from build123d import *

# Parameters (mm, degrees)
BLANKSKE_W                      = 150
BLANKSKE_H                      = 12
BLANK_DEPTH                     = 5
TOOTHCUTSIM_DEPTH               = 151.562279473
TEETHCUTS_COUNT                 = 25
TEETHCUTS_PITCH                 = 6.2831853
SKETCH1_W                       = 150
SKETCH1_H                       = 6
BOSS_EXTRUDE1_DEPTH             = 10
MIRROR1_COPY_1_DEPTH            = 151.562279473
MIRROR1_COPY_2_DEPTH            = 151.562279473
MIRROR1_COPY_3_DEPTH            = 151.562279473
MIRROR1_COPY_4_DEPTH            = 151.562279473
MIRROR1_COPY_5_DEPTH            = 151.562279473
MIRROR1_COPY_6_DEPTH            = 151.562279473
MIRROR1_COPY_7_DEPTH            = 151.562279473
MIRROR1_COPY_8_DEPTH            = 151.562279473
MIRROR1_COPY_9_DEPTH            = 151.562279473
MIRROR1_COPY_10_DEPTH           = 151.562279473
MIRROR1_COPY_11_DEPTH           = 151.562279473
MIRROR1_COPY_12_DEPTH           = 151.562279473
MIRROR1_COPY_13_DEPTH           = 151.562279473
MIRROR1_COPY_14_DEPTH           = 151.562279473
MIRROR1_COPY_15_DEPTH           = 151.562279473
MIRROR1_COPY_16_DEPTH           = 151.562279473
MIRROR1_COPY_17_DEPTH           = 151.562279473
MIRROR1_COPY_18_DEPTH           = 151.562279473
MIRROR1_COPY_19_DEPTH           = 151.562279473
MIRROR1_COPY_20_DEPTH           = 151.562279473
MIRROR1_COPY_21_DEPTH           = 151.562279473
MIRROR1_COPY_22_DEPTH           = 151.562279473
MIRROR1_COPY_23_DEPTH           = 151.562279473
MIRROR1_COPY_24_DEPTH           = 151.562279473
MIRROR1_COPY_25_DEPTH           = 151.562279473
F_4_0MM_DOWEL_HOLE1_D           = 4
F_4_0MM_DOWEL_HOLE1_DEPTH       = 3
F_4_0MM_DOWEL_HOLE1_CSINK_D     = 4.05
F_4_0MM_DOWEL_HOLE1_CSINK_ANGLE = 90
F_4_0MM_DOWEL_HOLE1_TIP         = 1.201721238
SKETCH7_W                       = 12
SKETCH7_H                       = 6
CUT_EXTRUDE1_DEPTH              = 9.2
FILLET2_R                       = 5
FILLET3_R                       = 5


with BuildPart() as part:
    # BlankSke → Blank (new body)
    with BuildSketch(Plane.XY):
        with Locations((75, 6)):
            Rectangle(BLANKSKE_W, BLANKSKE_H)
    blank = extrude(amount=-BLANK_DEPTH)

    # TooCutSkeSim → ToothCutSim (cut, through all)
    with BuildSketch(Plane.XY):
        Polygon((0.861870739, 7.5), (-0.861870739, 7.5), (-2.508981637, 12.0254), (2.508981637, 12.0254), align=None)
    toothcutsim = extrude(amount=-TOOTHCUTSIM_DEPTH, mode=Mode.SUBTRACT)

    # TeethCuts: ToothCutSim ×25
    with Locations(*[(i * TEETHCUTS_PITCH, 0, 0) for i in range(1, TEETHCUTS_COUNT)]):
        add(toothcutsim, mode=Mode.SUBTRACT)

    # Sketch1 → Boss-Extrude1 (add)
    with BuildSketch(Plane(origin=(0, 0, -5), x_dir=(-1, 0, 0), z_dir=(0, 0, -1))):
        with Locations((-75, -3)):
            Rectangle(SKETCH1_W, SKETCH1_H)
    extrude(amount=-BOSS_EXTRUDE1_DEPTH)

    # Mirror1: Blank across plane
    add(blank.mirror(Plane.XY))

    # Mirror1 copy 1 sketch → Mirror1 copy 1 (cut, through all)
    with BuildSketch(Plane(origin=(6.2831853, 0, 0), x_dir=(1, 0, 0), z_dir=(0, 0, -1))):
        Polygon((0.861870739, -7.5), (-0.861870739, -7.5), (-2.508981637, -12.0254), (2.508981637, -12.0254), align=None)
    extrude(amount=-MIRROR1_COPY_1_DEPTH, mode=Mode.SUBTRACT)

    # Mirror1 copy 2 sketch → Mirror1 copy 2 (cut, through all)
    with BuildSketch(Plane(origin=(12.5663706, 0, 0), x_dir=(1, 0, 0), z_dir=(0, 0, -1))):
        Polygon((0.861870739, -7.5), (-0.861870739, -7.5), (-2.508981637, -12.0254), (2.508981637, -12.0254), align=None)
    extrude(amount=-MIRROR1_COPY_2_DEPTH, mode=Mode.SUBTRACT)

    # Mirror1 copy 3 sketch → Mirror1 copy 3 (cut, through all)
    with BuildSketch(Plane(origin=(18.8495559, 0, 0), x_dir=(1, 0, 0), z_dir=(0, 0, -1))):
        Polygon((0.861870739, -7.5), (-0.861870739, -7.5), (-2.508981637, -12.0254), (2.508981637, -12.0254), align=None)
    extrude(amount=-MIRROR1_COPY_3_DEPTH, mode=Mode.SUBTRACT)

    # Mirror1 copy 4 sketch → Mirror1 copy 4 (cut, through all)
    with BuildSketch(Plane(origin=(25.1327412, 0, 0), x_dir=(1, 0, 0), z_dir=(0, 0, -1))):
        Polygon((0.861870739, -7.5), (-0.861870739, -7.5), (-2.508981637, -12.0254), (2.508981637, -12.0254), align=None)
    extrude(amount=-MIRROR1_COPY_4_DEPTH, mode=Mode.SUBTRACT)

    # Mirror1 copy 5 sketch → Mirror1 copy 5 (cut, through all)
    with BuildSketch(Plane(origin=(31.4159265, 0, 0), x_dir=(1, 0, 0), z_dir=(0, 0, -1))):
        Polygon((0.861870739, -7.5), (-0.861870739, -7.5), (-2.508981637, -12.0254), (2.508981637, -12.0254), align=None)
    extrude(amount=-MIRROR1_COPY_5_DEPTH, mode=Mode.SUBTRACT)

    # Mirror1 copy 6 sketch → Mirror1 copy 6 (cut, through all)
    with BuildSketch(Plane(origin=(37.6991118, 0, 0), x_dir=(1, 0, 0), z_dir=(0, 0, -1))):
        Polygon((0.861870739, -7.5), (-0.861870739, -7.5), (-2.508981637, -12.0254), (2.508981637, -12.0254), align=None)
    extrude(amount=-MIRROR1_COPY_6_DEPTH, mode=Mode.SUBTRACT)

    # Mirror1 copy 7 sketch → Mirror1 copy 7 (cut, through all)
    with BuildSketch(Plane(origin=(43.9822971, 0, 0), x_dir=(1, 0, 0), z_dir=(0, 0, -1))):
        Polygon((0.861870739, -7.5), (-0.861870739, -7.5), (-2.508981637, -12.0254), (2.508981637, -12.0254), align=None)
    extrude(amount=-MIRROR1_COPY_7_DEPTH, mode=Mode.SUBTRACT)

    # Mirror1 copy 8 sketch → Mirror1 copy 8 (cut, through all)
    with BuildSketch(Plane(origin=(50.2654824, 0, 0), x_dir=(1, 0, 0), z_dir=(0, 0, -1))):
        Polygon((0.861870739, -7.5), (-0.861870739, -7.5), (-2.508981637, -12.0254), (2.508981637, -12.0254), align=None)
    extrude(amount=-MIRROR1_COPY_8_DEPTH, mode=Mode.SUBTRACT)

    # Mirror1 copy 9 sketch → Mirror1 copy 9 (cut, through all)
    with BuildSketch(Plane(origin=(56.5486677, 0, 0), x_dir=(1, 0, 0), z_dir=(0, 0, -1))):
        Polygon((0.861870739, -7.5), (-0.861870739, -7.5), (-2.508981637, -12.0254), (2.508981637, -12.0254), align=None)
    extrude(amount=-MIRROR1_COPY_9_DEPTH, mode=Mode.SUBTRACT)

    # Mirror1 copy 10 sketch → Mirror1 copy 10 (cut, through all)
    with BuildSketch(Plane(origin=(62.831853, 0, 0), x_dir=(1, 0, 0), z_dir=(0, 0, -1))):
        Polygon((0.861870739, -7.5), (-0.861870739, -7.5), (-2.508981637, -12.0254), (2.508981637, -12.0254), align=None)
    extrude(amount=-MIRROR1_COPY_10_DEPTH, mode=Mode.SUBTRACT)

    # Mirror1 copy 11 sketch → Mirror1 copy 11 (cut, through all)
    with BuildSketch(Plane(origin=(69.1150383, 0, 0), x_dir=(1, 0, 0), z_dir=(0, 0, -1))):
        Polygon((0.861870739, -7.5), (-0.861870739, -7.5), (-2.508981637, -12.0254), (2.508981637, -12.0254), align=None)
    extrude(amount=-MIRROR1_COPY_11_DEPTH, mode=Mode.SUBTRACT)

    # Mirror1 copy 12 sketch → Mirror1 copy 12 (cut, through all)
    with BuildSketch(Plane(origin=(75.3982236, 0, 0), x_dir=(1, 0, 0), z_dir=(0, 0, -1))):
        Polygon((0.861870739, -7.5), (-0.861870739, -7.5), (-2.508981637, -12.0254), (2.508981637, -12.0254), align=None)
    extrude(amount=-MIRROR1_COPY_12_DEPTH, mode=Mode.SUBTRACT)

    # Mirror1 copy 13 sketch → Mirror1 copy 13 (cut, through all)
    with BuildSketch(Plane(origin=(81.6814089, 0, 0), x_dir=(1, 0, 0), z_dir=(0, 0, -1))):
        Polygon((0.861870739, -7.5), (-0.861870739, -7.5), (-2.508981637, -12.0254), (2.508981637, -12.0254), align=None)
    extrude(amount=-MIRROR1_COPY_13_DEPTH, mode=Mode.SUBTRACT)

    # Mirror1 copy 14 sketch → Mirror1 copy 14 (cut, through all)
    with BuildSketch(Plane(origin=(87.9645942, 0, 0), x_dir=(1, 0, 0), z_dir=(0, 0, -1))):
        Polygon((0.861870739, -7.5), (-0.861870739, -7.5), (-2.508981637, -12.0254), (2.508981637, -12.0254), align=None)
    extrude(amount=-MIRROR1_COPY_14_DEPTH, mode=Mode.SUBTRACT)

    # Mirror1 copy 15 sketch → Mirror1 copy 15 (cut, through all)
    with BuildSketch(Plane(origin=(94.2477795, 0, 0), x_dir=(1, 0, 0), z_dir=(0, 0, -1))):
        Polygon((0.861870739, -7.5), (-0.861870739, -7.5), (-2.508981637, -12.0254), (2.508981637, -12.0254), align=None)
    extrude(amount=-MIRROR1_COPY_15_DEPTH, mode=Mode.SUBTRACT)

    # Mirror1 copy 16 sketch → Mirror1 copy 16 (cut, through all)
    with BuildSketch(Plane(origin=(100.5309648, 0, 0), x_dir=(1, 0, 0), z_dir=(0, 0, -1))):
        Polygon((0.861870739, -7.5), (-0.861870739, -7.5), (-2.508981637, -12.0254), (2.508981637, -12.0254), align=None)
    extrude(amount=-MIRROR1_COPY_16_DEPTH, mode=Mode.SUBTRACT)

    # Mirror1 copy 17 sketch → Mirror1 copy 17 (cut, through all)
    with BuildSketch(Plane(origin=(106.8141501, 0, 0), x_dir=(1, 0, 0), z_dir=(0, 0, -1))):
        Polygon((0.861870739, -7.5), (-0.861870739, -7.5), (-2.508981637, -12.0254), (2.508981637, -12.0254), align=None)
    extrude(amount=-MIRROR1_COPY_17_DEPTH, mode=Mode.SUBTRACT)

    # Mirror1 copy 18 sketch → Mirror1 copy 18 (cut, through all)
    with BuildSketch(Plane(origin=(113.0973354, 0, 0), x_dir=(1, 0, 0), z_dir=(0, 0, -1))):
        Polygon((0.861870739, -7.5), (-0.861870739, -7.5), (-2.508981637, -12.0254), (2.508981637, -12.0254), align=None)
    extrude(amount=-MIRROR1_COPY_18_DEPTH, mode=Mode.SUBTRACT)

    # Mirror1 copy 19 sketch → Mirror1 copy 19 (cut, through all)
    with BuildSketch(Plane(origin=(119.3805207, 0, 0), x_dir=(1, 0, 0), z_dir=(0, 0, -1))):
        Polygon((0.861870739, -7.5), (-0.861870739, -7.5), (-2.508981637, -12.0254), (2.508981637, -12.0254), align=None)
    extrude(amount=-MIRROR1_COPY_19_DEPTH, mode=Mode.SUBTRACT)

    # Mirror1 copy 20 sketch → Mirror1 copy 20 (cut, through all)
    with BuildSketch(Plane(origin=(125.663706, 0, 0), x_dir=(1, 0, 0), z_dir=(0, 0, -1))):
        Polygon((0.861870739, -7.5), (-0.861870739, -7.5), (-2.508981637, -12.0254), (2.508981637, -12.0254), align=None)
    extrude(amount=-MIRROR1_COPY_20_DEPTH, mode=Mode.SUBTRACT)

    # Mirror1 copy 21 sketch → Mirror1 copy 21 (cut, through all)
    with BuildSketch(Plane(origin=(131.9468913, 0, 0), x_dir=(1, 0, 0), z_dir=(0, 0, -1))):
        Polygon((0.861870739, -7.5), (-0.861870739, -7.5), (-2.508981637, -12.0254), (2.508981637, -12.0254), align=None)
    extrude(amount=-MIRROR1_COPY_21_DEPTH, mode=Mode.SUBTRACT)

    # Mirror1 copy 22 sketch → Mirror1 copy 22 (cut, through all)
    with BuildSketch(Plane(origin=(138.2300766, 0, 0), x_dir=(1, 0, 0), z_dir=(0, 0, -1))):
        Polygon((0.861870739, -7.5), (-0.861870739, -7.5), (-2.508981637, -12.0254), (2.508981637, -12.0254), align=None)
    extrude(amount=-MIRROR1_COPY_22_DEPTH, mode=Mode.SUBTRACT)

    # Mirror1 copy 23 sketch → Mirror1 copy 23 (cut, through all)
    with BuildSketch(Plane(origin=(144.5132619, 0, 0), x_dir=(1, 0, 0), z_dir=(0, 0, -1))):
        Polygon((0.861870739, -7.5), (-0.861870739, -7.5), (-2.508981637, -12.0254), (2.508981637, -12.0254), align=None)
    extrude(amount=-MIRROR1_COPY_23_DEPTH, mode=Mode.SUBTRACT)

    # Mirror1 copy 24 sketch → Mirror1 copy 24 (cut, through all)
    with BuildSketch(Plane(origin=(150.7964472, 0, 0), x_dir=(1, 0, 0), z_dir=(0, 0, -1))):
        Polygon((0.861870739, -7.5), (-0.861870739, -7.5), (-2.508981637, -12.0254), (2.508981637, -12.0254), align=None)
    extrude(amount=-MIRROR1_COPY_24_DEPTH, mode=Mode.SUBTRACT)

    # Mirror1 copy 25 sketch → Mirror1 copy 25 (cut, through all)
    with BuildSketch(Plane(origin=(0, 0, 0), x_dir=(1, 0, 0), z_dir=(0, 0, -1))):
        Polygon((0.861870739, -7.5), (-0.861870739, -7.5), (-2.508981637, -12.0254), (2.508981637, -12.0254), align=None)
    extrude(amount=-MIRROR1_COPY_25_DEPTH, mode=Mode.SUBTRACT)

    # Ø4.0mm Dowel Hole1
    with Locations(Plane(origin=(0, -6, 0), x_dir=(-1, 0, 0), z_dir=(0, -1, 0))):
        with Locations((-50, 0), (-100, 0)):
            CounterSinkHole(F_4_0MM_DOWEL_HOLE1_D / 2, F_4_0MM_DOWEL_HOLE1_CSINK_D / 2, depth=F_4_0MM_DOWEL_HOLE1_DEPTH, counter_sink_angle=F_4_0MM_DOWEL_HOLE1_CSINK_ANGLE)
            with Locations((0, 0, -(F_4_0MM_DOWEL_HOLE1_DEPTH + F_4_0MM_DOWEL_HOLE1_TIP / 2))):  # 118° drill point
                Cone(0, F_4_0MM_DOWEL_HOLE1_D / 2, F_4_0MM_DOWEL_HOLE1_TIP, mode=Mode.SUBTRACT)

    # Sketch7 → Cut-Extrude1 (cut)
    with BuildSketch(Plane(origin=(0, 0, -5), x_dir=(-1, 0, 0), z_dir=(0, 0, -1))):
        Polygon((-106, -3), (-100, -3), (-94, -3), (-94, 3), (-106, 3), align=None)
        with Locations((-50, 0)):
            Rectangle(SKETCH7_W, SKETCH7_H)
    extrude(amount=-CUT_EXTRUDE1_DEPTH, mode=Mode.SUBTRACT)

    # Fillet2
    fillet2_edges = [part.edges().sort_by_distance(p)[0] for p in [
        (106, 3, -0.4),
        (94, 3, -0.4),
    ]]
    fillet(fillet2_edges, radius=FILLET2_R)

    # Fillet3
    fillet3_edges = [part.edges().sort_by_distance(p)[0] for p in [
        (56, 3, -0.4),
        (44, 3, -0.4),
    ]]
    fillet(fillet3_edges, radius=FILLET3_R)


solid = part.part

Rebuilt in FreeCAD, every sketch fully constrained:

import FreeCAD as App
import Part
import Sketcher
from FreeCAD import Vector
Q = App.Units.Quantity


def edges_at(feature, points):
    """Names of the edges that pass closest to the given points."""
    edges = feature.Shape.Edges
    near = lambda p: min(range(len(edges)), key=lambda i: edges[i].distToShape(Part.Vertex(*p))[0])
    return sorted({f"Edge{near(p) + 1}" for p in points})


def add_polygon(sketch, points):
    """Adds a closed chain of lines whose ends are joined by coincident constraints."""
    first, n = sketch.GeometryCount, len(points)
    for a, b in zip(points, points[1:] + points[:1]):
        sketch.addGeometry(Part.LineSegment(App.Vector(*a, 0), App.Vector(*b, 0)), False)
    for i in range(n):
        sketch.addConstraint(Sketcher.Constraint("Coincident", first + i, 2, first + (i + 1) % n, 1))

doc = App.newDocument("Part")
body = doc.addObject("PartDesign::Body", "Body")

# Sketch on XY plane
sketch1 = body.newObject("Sketcher::SketchObject", "Sketch")
sketch1.AttachmentSupport = (doc.getObject("XY_Plane"), [""])
sketch1.MapMode = "FlatFace"
add_polygon(sketch1, [(0, 12), (0, 0), (150, 0), (150, 12)])  # lines 0-3
sketch1.addConstraint([
    Sketcher.Constraint("Vertical", 0),
    Sketcher.Constraint("Horizontal", 1),
    Sketcher.Constraint("Vertical", 2),
    Sketcher.Constraint("Horizontal", 3),
    Sketcher.Constraint("Coincident", 0, 2, -1, 1),
    Sketcher.Constraint("DistanceX", 1, 1, 1, 2, 150.0),
    Sketcher.Constraint("DistanceY", 0, 2, 0, 1, 12.0),
])
pad1 = body.newObject("PartDesign::Pad", "Pad")
pad1.Profile = sketch1
pad1.Length = 5
pad1.Reversed = True

# Sketch on XY plane
sketch2 = body.newObject("Sketcher::SketchObject", "Sketch001")
sketch2.AttachmentSupport = (doc.getObject("XY_Plane"), [""])
sketch2.MapMode = "FlatFace"
add_polygon(sketch2, [(-0.9, 7.5), (0.9, 7.5), (2.5, 12), (-2.5, 12)])  # lines 0-3
sketch2.addConstraint([
    Sketcher.Constraint("Horizontal", 0),
    Sketcher.Constraint("Horizontal", 2),
    Sketcher.Constraint("Equal", 1, 3),
    Sketcher.Constraint("Angle", 1, Q("70 deg")),
    Sketcher.Constraint("DistanceY", -1, 1, 0, 2, 7.5),
    Sketcher.Constraint("DistanceX", 0, 1, 0, 2, 1.723741),
    Sketcher.Constraint("DistanceY", -1, 1, 1, 2, 12.0254),
    Sketcher.Constraint("DistanceX", -1, 1, 0, 2, 0.861871),
])
pocket1 = body.newObject("PartDesign::Pocket", "Pocket")
pocket1.Profile = sketch2
pocket1.Type = "ThroughAll"
doc.recompute()

linearpattern = body.newObject("PartDesign::LinearPattern", "LinearPattern")
linearpattern.Originals = [pocket1]
linearpattern.Direction = (doc.getObject("X_Axis"), [""])
linearpattern.Mode = "offset"
linearpattern.Offset = 6.283185
linearpattern.Occurrences = 25
body.Tip = linearpattern

# Sketch on XY plane
sketch3 = body.newObject("Sketcher::SketchObject", "Sketch002")
sketch3.AttachmentSupport = (doc.getObject("XY_Plane"), [""])
sketch3.MapMode = "FlatFace"
sketch3.AttachmentOffset = App.Placement(Vector(0, 0, -5), App.Rotation())
add_polygon(sketch3, [(150, 0), (150, -6), (0, -6), (0, 0)])  # lines 0-3
sketch3.addConstraint([
    Sketcher.Constraint("Vertical", 0),
    Sketcher.Constraint("Horizontal", 1),
    Sketcher.Constraint("Vertical", 2),
    Sketcher.Constraint("Horizontal", 3),
    Sketcher.Constraint("Coincident", 2, 2, -1, 1),
    Sketcher.Constraint("DistanceX", 1, 2, 1, 1, 150.0),
    Sketcher.Constraint("DistanceY", 0, 2, 0, 1, 6.0),
])
pad2 = body.newObject("PartDesign::Pad", "Pad001")
pad2.Profile = sketch3
pad2.Length = 10
doc.recompute()

mirrored = body.newObject("PartDesign::Mirrored", "Mirrored")
mirrored.Originals = [pad1]
mirrored.MirrorPlane = (doc.getObject("XY_Plane"), [""])
body.Tip = mirrored

# Sketch on XY plane
sketch4 = body.newObject("Sketcher::SketchObject", "Sketch003")
sketch4.AttachmentSupport = (doc.getObject("XY_Plane"), [""])
sketch4.MapMode = "FlatFace"
add_polygon(sketch4, [(7.1, 7.5), (5.4, 7.5), (3.8, 12), (8.8, 12)])  # lines 0-3
sketch4.addConstraint([
    Sketcher.Constraint("Horizontal", 0),
    Sketcher.Constraint("Horizontal", 2),
    Sketcher.Constraint("Equal", 1, 3),
    Sketcher.Constraint("Angle", 1, Q("110 deg")),
    Sketcher.Constraint("DistanceY", -1, 1, 0, 2, 7.5),
    Sketcher.Constraint("DistanceX", 0, 2, 0, 1, 1.723741),
    Sketcher.Constraint("DistanceY", -1, 1, 1, 2, 12.0254),
    Sketcher.Constraint("DistanceX", -1, 1, 0, 2, 5.421315),
])
pocket2 = body.newObject("PartDesign::Pocket", "Pocket001")
pocket2.Profile = sketch4
pocket2.Type = "ThroughAll"
pocket2.Reversed = True

# Sketch on XY plane
sketch5 = body.newObject("Sketcher::SketchObject", "Sketch004")
sketch5.AttachmentSupport = (doc.getObject("XY_Plane"), [""])
sketch5.MapMode = "FlatFace"
add_polygon(sketch5, [(13.4, 7.5), (11.7, 7.5), (10.1, 12), (15.1, 12)])  # lines 0-3
sketch5.addConstraint([
    Sketcher.Constraint("Horizontal", 0),
    Sketcher.Constraint("Horizontal", 2),
    Sketcher.Constraint("Equal", 1, 3),
    Sketcher.Constraint("Angle", 1, Q("110 deg")),
    Sketcher.Constraint("DistanceY", -1, 1, 0, 2, 7.5),
    Sketcher.Constraint("DistanceX", 0, 2, 0, 1, 1.723741),
    Sketcher.Constraint("DistanceX", -1, 1, 0, 2, 11.7045),
    Sketcher.Constraint("DistanceY", -1, 1, 1, 2, 12.0254),
])
pocket3 = body.newObject("PartDesign::Pocket", "Pocket002")
pocket3.Profile = sketch5
pocket3.Type = "ThroughAll"
pocket3.Reversed = True

# Sketch on XY plane
sketch6 = body.newObject("Sketcher::SketchObject", "Sketch005")
sketch6.AttachmentSupport = (doc.getObject("XY_Plane"), [""])
sketch6.MapMode = "FlatFace"
add_polygon(sketch6, [(19.7, 7.5), (18, 7.5), (16.3, 12), (21.4, 12)])  # lines 0-3
sketch6.addConstraint([
    Sketcher.Constraint("Horizontal", 0),
    Sketcher.Constraint("Horizontal", 2),
    Sketcher.Constraint("Equal", 1, 3),
    Sketcher.Constraint("Angle", 1, Q("110 deg")),
    Sketcher.Constraint("DistanceY", -1, 1, 0, 2, 7.5),
    Sketcher.Constraint("DistanceX", 0, 2, 0, 1, 1.723741),
    Sketcher.Constraint("DistanceY", -1, 1, 1, 2, 12.0254),
    Sketcher.Constraint("DistanceX", -1, 1, 0, 2, 17.987685),
])
pocket4 = body.newObject("PartDesign::Pocket", "Pocket003")
pocket4.Profile = sketch6
pocket4.Type = "ThroughAll"
pocket4.Reversed = True

# Sketch on XY plane
sketch7 = body.newObject("Sketcher::SketchObject", "Sketch006")
sketch7.AttachmentSupport = (doc.getObject("XY_Plane"), [""])
sketch7.MapMode = "FlatFace"
add_polygon(sketch7, [(26, 7.5), (24.3, 7.5), (22.6, 12), (27.6, 12)])  # lines 0-3
sketch7.addConstraint([
    Sketcher.Constraint("Horizontal", 0),
    Sketcher.Constraint("Horizontal", 2),
    Sketcher.Constraint("Equal", 1, 3),
    Sketcher.Constraint("Angle", 1, Q("110 deg")),
    Sketcher.Constraint("DistanceY", -1, 1, 0, 2, 7.5),
    Sketcher.Constraint("DistanceX", 0, 2, 0, 1, 1.723741),
    Sketcher.Constraint("DistanceY", -1, 1, 1, 2, 12.0254),
    Sketcher.Constraint("DistanceX", -1, 1, 0, 2, 24.27087),
])
pocket5 = body.newObject("PartDesign::Pocket", "Pocket004")
pocket5.Profile = sketch7
pocket5.Type = "ThroughAll"
pocket5.Reversed = True

# Sketch on XY plane
sketch8 = body.newObject("Sketcher::SketchObject", "Sketch007")
sketch8.AttachmentSupport = (doc.getObject("XY_Plane"), [""])
sketch8.MapMode = "FlatFace"
add_polygon(sketch8, [(32.3, 7.5), (30.6, 7.5), (28.9, 12), (33.9, 12)])  # lines 0-3
sketch8.addConstraint([
    Sketcher.Constraint("Horizontal", 0),
    Sketcher.Constraint("Horizontal", 2),
    Sketcher.Constraint("Equal", 1, 3),
    Sketcher.Constraint("Angle", 1, Q("110 deg")),
    Sketcher.Constraint("DistanceY", -1, 1, 0, 2, 7.5),
    Sketcher.Constraint("DistanceX", 0, 2, 0, 1, 1.723741),
    Sketcher.Constraint("DistanceY", -1, 1, 1, 2, 12.0254),
    Sketcher.Constraint("DistanceX", -1, 1, 2, 2, 33.924908),
])
pocket6 = body.newObject("PartDesign::Pocket", "Pocket005")
pocket6.Profile = sketch8
pocket6.Type = "ThroughAll"
pocket6.Reversed = True

# Sketch on XY plane
sketch9 = body.newObject("Sketcher::SketchObject", "Sketch008")
sketch9.AttachmentSupport = (doc.getObject("XY_Plane"), [""])
sketch9.MapMode = "FlatFace"
add_polygon(sketch9, [(38.6, 7.5), (36.8, 7.5), (35.2, 12), (40.2, 12)])  # lines 0-3
sketch9.addConstraint([
    Sketcher.Constraint("Horizontal", 0),
    Sketcher.Constraint("Horizontal", 2),
    Sketcher.Constraint("Equal", 1, 3),
    Sketcher.Constraint("Angle", 1, Q("110 deg")),
    Sketcher.Constraint("DistanceY", -1, 1, 0, 2, 7.5),
    Sketcher.Constraint("DistanceX", 0, 2, 0, 1, 1.723741),
    Sketcher.Constraint("DistanceY", -1, 1, 1, 2, 12.0254),
    Sketcher.Constraint("DistanceX", -1, 1, 0, 2, 36.837241),
])
pocket7 = body.newObject("PartDesign::Pocket", "Pocket006")
pocket7.Profile = sketch9
pocket7.Type = "ThroughAll"
pocket7.Reversed = True

# Sketch on XY plane
sketch10 = body.newObject("Sketcher::SketchObject", "Sketch009")
sketch10.AttachmentSupport = (doc.getObject("XY_Plane"), [""])
sketch10.MapMode = "FlatFace"
add_polygon(sketch10, [(44.8, 7.5), (43.1, 7.5), (41.5, 12), (46.5, 12)])  # lines 0-3
sketch10.addConstraint([
    Sketcher.Constraint("Horizontal", 0),
    Sketcher.Constraint("Horizontal", 2),
    Sketcher.Constraint("Equal", 1, 3),
    Sketcher.Constraint("Angle", 1, Q("110 deg")),
    Sketcher.Constraint("DistanceY", -1, 1, 0, 2, 7.5),
    Sketcher.Constraint("DistanceX", 0, 2, 0, 1, 1.723741),
    Sketcher.Constraint("DistanceY", -1, 1, 1, 2, 12.0254),
    Sketcher.Constraint("DistanceX", -1, 1, 2, 2, 46.491279),
])
pocket8 = body.newObject("PartDesign::Pocket", "Pocket007")
pocket8.Profile = sketch10
pocket8.Type = "ThroughAll"
pocket8.Reversed = True

# Sketch on XY plane
sketch11 = body.newObject("Sketcher::SketchObject", "Sketch010")
sketch11.AttachmentSupport = (doc.getObject("XY_Plane"), [""])
sketch11.MapMode = "FlatFace"
add_polygon(sketch11, [(51.1, 7.5), (49.4, 7.5), (47.8, 12), (52.8, 12)])  # lines 0-3
sketch11.addConstraint([
    Sketcher.Constraint("Horizontal", 0),
    Sketcher.Constraint("Horizontal", 2),
    Sketcher.Constraint("Equal", 1, 3),
    Sketcher.Constraint("Angle", 1, Q("110 deg")),
    Sketcher.Constraint("DistanceY", -1, 1, 0, 2, 7.5),
    Sketcher.Constraint("DistanceX", 0, 2, 0, 1, 1.723741),
    Sketcher.Constraint("DistanceX", -1, 1, 1, 2, 47.756501),
    Sketcher.Constraint("DistanceY", -1, 1, 1, 2, 12.0254),
])
pocket9 = body.newObject("PartDesign::Pocket", "Pocket008")
pocket9.Profile = sketch11
pocket9.Type = "ThroughAll"
pocket9.Reversed = True

# Sketch on XY plane
sketch12 = body.newObject("Sketcher::SketchObject", "Sketch011")
sketch12.AttachmentSupport = (doc.getObject("XY_Plane"), [""])
sketch12.MapMode = "FlatFace"
add_polygon(sketch12, [(57.4, 7.5), (55.7, 7.5), (54, 12), (59.1, 12)])  # lines 0-3
sketch12.addConstraint([
    Sketcher.Constraint("Horizontal", 0),
    Sketcher.Constraint("Horizontal", 2),
    Sketcher.Constraint("Equal", 1, 3),
    Sketcher.Constraint("Angle", 1, Q("110 deg")),
    Sketcher.Constraint("DistanceY", -1, 1, 0, 2, 7.5),
    Sketcher.Constraint("DistanceX", 0, 2, 0, 1, 1.723741),
    Sketcher.Constraint("DistanceY", -1, 1, 1, 2, 12.0254),
    Sketcher.Constraint("DistanceX", -1, 1, 2, 2, 59.057649),
])
pocket10 = body.newObject("PartDesign::Pocket", "Pocket009")
pocket10.Profile = sketch12
pocket10.Type = "ThroughAll"
pocket10.Reversed = True

# Sketch on XY plane
sketch13 = body.newObject("Sketcher::SketchObject", "Sketch012")
sketch13.AttachmentSupport = (doc.getObject("XY_Plane"), [""])
sketch13.MapMode = "FlatFace"
add_polygon(sketch13, [(63.7, 7.5), (62, 7.5), (60.3, 12), (65.3, 12)])  # lines 0-3
sketch13.addConstraint([
    Sketcher.Constraint("Horizontal", 0),
    Sketcher.Constraint("Horizontal", 2),
    Sketcher.Constraint("Equal", 1, 3),
    Sketcher.Constraint("Angle", 1, Q("110 deg")),
    Sketcher.Constraint("DistanceY", -1, 1, 0, 2, 7.5),
    Sketcher.Constraint("DistanceX", 0, 2, 0, 1, 1.723741),
    Sketcher.Constraint("DistanceY", -1, 1, 1, 2, 12.0254),
    Sketcher.Constraint("DistanceX", -1, 1, 1, 2, 60.322871),
])
pocket11 = body.newObject("PartDesign::Pocket", "Pocket010")
pocket11.Profile = sketch13
pocket11.Type = "ThroughAll"
pocket11.Reversed = True

# Sketch on XY plane
sketch14 = body.newObject("Sketcher::SketchObject", "Sketch013")
sketch14.AttachmentSupport = (doc.getObject("XY_Plane"), [""])
sketch14.MapMode = "FlatFace"
add_polygon(sketch14, [(70, 7.5), (68.3, 7.5), (66.6, 12), (71.6, 12)])  # lines 0-3
sketch14.addConstraint([
    Sketcher.Constraint("Horizontal", 0),
    Sketcher.Constraint("Horizontal", 2),
    Sketcher.Constraint("Equal", 1, 3),
    Sketcher.Constraint("Angle", 1, Q("110 deg")),
    Sketcher.Constraint("DistanceY", -1, 1, 0, 2, 7.5),
    Sketcher.Constraint("DistanceX", 0, 2, 0, 1, 1.723741),
    Sketcher.Constraint("DistanceY", -1, 1, 1, 2, 12.0254),
    Sketcher.Constraint("DistanceX", -1, 1, 2, 2, 71.62402),
])
pocket12 = body.newObject("PartDesign::Pocket", "Pocket011")
pocket12.Profile = sketch14
pocket12.Type = "ThroughAll"
pocket12.Reversed = True

# Sketch on XY plane
sketch15 = body.newObject("Sketcher::SketchObject", "Sketch014")
sketch15.AttachmentSupport = (doc.getObject("XY_Plane"), [""])
sketch15.MapMode = "FlatFace"
add_polygon(sketch15, [(76.3, 7.5), (74.5, 7.5), (72.9, 12), (77.9, 12)])  # lines 0-3
sketch15.addConstraint([
    Sketcher.Constraint("Horizontal", 0),
    Sketcher.Constraint("Horizontal", 2),
    Sketcher.Constraint("Equal", 1, 3),
    Sketcher.Constraint("Angle", 1, Q("110 deg")),
    Sketcher.Constraint("DistanceY", -1, 1, 0, 2, 7.5),
    Sketcher.Constraint("DistanceX", 0, 2, 0, 1, 1.723741),
    Sketcher.Constraint("DistanceY", -1, 1, 1, 2, 12.0254),
    Sketcher.Constraint("DistanceX", -1, 1, 1, 2, 72.889242),
])
pocket13 = body.newObject("PartDesign::Pocket", "Pocket012")
pocket13.Profile = sketch15
pocket13.Type = "ThroughAll"
pocket13.Reversed = True

# Sketch on XY plane
sketch16 = body.newObject("Sketcher::SketchObject", "Sketch015")
sketch16.AttachmentSupport = (doc.getObject("XY_Plane"), [""])
sketch16.MapMode = "FlatFace"
add_polygon(sketch16, [(82.5, 7.5), (80.8, 7.5), (79.2, 12), (84.2, 12)])  # lines 0-3
sketch16.addConstraint([
    Sketcher.Constraint("Horizontal", 0),
    Sketcher.Constraint("Horizontal", 2),
    Sketcher.Constraint("Equal", 1, 3),
    Sketcher.Constraint("Angle", 1, Q("110 deg")),
    Sketcher.Constraint("DistanceY", -1, 1, 0, 2, 7.5),
    Sketcher.Constraint("DistanceX", 0, 2, 0, 1, 1.723741),
    Sketcher.Constraint("DistanceY", -1, 1, 1, 2, 12.0254),
    Sketcher.Constraint("DistanceX", -1, 1, 0, 2, 80.819538),
])
pocket14 = body.newObject("PartDesign::Pocket", "Pocket013")
pocket14.Profile = sketch16
pocket14.Type = "ThroughAll"
pocket14.Reversed = True

# Sketch on XY plane
sketch17 = body.newObject("Sketcher::SketchObject", "Sketch016")
sketch17.AttachmentSupport = (doc.getObject("XY_Plane"), [""])
sketch17.MapMode = "FlatFace"
add_polygon(sketch17, [(88.8, 7.5), (87.1, 7.5), (85.5, 12), (90.5, 12)])  # lines 0-3
sketch17.addConstraint([
    Sketcher.Constraint("Horizontal", 0),
    Sketcher.Constraint("Horizontal", 2),
    Sketcher.Constraint("Equal", 1, 3),
    Sketcher.Constraint("Angle", 1, Q("110 deg")),
    Sketcher.Constraint("DistanceY", -1, 1, 0, 2, 7.5),
    Sketcher.Constraint("DistanceX", 0, 2, 0, 1, 1.723741),
    Sketcher.Constraint("DistanceY", -1, 1, 1, 2, 12.0254),
    Sketcher.Constraint("DistanceX", -1, 1, 0, 2, 87.102723),
])
pocket15 = body.newObject("PartDesign::Pocket", "Pocket014")
pocket15.Profile = sketch17
pocket15.Type = "ThroughAll"
pocket15.Reversed = True

# Sketch on XY plane
sketch18 = body.newObject("Sketcher::SketchObject", "Sketch017")
sketch18.AttachmentSupport = (doc.getObject("XY_Plane"), [""])
sketch18.MapMode = "FlatFace"
add_polygon(sketch18, [(95.1, 7.5), (93.4, 7.5), (91.7, 12), (96.8, 12)])  # lines 0-3
sketch18.addConstraint([
    Sketcher.Constraint("Horizontal", 0),
    Sketcher.Constraint("Horizontal", 2),
    Sketcher.Constraint("Equal", 1, 3),
    Sketcher.Constraint("Angle", 1, Q("110 deg")),
    Sketcher.Constraint("DistanceY", -1, 1, 0, 2, 7.5),
    Sketcher.Constraint("DistanceX", 0, 2, 0, 1, 1.723741),
    Sketcher.Constraint("DistanceY", -1, 1, 1, 2, 12.0254),
    Sketcher.Constraint("DistanceX", -1, 1, 0, 2, 93.385909),
])
pocket16 = body.newObject("PartDesign::Pocket", "Pocket015")
pocket16.Profile = sketch18
pocket16.Type = "ThroughAll"
pocket16.Reversed = True

# Sketch on XY plane
sketch19 = body.newObject("Sketcher::SketchObject", "Sketch018")
sketch19.AttachmentSupport = (doc.getObject("XY_Plane"), [""])
sketch19.MapMode = "FlatFace"
add_polygon(sketch19, [(101.4, 7.5), (99.7, 7.5), (98, 12), (103, 12)])  # lines 0-3
sketch19.addConstraint([
    Sketcher.Constraint("Horizontal", 0),
    Sketcher.Constraint("Horizontal", 2),
    Sketcher.Constraint("Equal", 1, 3),
    Sketcher.Constraint("Angle", 1, Q("110 deg")),
    Sketcher.Constraint("DistanceY", -1, 1, 0, 2, 7.5),
    Sketcher.Constraint("DistanceX", 0, 2, 0, 1, 1.723741),
    Sketcher.Constraint("DistanceY", -1, 1, 1, 2, 12.0254),
    Sketcher.Constraint("DistanceX", -1, 1, 0, 2, 99.669094),
])
pocket17 = body.newObject("PartDesign::Pocket", "Pocket016")
pocket17.Profile = sketch19
pocket17.Type = "ThroughAll"
pocket17.Reversed = True

# Sketch on XY plane
sketch20 = body.newObject("Sketcher::SketchObject", "Sketch019")
sketch20.AttachmentSupport = (doc.getObject("XY_Plane"), [""])
sketch20.MapMode = "FlatFace"
add_polygon(sketch20, [(107.7, 7.5), (106, 7.5), (104.3, 12), (109.3, 12)])  # lines 0-3
sketch20.addConstraint([
    Sketcher.Constraint("Horizontal", 0),
    Sketcher.Constraint("Horizontal", 2),
    Sketcher.Constraint("Equal", 1, 3),
    Sketcher.Constraint("Angle", 1, Q("110 deg")),
    Sketcher.Constraint("DistanceY", -1, 1, 0, 2, 7.5),
    Sketcher.Constraint("DistanceX", 0, 2, 0, 1, 1.723741),
    Sketcher.Constraint("DistanceY", -1, 1, 1, 2, 12.0254),
    Sketcher.Constraint("DistanceX", -1, 1, 0, 2, 105.952279),
])
pocket18 = body.newObject("PartDesign::Pocket", "Pocket017")
pocket18.Profile = sketch20
pocket18.Type = "ThroughAll"
pocket18.Reversed = True

# Sketch on XY plane
sketch21 = body.newObject("Sketcher::SketchObject", "Sketch020")
sketch21.AttachmentSupport = (doc.getObject("XY_Plane"), [""])
sketch21.MapMode = "FlatFace"
add_polygon(sketch21, [(114, 7.5), (112.2, 7.5), (110.6, 12), (115.6, 12)])  # lines 0-3
sketch21.addConstraint([
    Sketcher.Constraint("Horizontal", 0),
    Sketcher.Constraint("Horizontal", 2),
    Sketcher.Constraint("Equal", 1, 3),
    Sketcher.Constraint("Angle", 1, Q("110 deg")),
    Sketcher.Constraint("DistanceY", -1, 1, 0, 2, 7.5),
    Sketcher.Constraint("DistanceX", 0, 2, 0, 1, 1.723741),
    Sketcher.Constraint("DistanceY", -1, 1, 1, 2, 12.0254),
    Sketcher.Constraint("DistanceX", -1, 1, 0, 2, 112.235465),
])
pocket19 = body.newObject("PartDesign::Pocket", "Pocket018")
pocket19.Profile = sketch21
pocket19.Type = "ThroughAll"
pocket19.Reversed = True

# Sketch on XY plane
sketch22 = body.newObject("Sketcher::SketchObject", "Sketch021")
sketch22.AttachmentSupport = (doc.getObject("XY_Plane"), [""])
sketch22.MapMode = "FlatFace"
add_polygon(sketch22, [(120.2, 7.5), (118.5, 7.5), (116.9, 12), (121.9, 12)])  # lines 0-3
sketch22.addConstraint([
    Sketcher.Constraint("Horizontal", 0),
    Sketcher.Constraint("Horizontal", 2),
    Sketcher.Constraint("Equal", 1, 3),
    Sketcher.Constraint("Angle", 1, Q("110 deg")),
    Sketcher.Constraint("DistanceY", -1, 1, 0, 2, 7.5),
    Sketcher.Constraint("DistanceX", 0, 2, 0, 1, 1.723741),
    Sketcher.Constraint("DistanceY", -1, 1, 1, 2, 12.0254),
    Sketcher.Constraint("DistanceX", -1, 1, 0, 2, 118.51865),
])
pocket20 = body.newObject("PartDesign::Pocket", "Pocket019")
pocket20.Profile = sketch22
pocket20.Type = "ThroughAll"
pocket20.Reversed = True

# Sketch on XY plane
sketch23 = body.newObject("Sketcher::SketchObject", "Sketch022")
sketch23.AttachmentSupport = (doc.getObject("XY_Plane"), [""])
sketch23.MapMode = "FlatFace"
add_polygon(sketch23, [(126.5, 7.5), (124.8, 7.5), (123.2, 12), (128.2, 12)])  # lines 0-3
sketch23.addConstraint([
    Sketcher.Constraint("Horizontal", 0),
    Sketcher.Constraint("Horizontal", 2),
    Sketcher.Constraint("Equal", 1, 3),
    Sketcher.Constraint("Angle", 1, Q("110 deg")),
    Sketcher.Constraint("DistanceY", -1, 1, 0, 2, 7.5),
    Sketcher.Constraint("DistanceX", 0, 2, 0, 1, 1.723741),
    Sketcher.Constraint("DistanceY", -1, 1, 1, 2, 12.0254),
    Sketcher.Constraint("DistanceX", -1, 1, 0, 2, 124.801835),
])
pocket21 = body.newObject("PartDesign::Pocket", "Pocket020")
pocket21.Profile = sketch23
pocket21.Type = "ThroughAll"
pocket21.Reversed = True

# Sketch on XY plane
sketch24 = body.newObject("Sketcher::SketchObject", "Sketch023")
sketch24.AttachmentSupport = (doc.getObject("XY_Plane"), [""])
sketch24.MapMode = "FlatFace"
add_polygon(sketch24, [(132.8, 7.5), (131.1, 7.5), (129.4, 12), (134.5, 12)])  # lines 0-3
sketch24.addConstraint([
    Sketcher.Constraint("Horizontal", 0),
    Sketcher.Constraint("Horizontal", 2),
    Sketcher.Constraint("Equal", 1, 3),
    Sketcher.Constraint("Angle", 1, Q("110 deg")),
    Sketcher.Constraint("DistanceY", -1, 1, 0, 2, 7.5),
    Sketcher.Constraint("DistanceX", 0, 2, 0, 1, 1.723741),
    Sketcher.Constraint("DistanceY", -1, 1, 1, 2, 12.0254),
    Sketcher.Constraint("DistanceX", -1, 1, 0, 2, 131.085021),
])
pocket22 = body.newObject("PartDesign::Pocket", "Pocket021")
pocket22.Profile = sketch24
pocket22.Type = "ThroughAll"
pocket22.Reversed = True

# Sketch on XY plane
sketch25 = body.newObject("Sketcher::SketchObject", "Sketch024")
sketch25.AttachmentSupport = (doc.getObject("XY_Plane"), [""])
sketch25.MapMode = "FlatFace"
add_polygon(sketch25, [(139.1, 7.5), (137.4, 7.5), (135.7, 12), (140.7, 12)])  # lines 0-3
sketch25.addConstraint([
    Sketcher.Constraint("Horizontal", 0),
    Sketcher.Constraint("Horizontal", 2),
    Sketcher.Constraint("Equal", 1, 3),
    Sketcher.Constraint("Angle", 1, Q("110 deg")),
    Sketcher.Constraint("DistanceY", -1, 1, 0, 2, 7.5),
    Sketcher.Constraint("DistanceX", 0, 2, 0, 1, 1.723741),
    Sketcher.Constraint("DistanceY", -1, 1, 1, 2, 12.0254),
    Sketcher.Constraint("DistanceX", -1, 1, 2, 2, 140.739058),
])
pocket23 = body.newObject("PartDesign::Pocket", "Pocket022")
pocket23.Profile = sketch25
pocket23.Type = "ThroughAll"
pocket23.Reversed = True

# Sketch on XY plane
sketch26 = body.newObject("Sketcher::SketchObject", "Sketch025")
sketch26.AttachmentSupport = (doc.getObject("XY_Plane"), [""])
sketch26.MapMode = "FlatFace"
add_polygon(sketch26, [(145.4, 7.5), (143.7, 7.5), (142, 12), (147, 12)])  # lines 0-3
sketch26.addConstraint([
    Sketcher.Constraint("Horizontal", 0),
    Sketcher.Constraint("Horizontal", 2),
    Sketcher.Constraint("Equal", 1, 3),
    Sketcher.Constraint("Angle", 1, Q("110 deg")),
    Sketcher.Constraint("DistanceY", -1, 1, 0, 2, 7.5),
    Sketcher.Constraint("DistanceX", 0, 2, 0, 1, 1.723741),
    Sketcher.Constraint("DistanceY", -1, 1, 1, 2, 12.0254),
    Sketcher.Constraint("DistanceX", -1, 1, 0, 2, 143.651391),
])
pocket24 = body.newObject("PartDesign::Pocket", "Pocket023")
pocket24.Profile = sketch26
pocket24.Type = "ThroughAll"
pocket24.Reversed = True

# Sketch on XY plane
sketch27 = body.newObject("Sketcher::SketchObject", "Sketch026")
sketch27.AttachmentSupport = (doc.getObject("XY_Plane"), [""])
sketch27.MapMode = "FlatFace"
add_polygon(sketch27, [(151.7, 7.5), (149.9, 7.5), (148.3, 12), (153.3, 12)])  # lines 0-3
sketch27.addConstraint([
    Sketcher.Constraint("Horizontal", 0),
    Sketcher.Constraint("Horizontal", 2),
    Sketcher.Constraint("Equal", 1, 3),
    Sketcher.Constraint("Angle", 1, Q("110 deg")),
    Sketcher.Constraint("DistanceY", -1, 1, 0, 2, 7.5),
    Sketcher.Constraint("DistanceX", 0, 2, 0, 1, 1.723741),
    Sketcher.Constraint("DistanceY", -1, 1, 1, 2, 12.0254),
    Sketcher.Constraint("DistanceX", -1, 1, 2, 2, 153.305429),
])
pocket25 = body.newObject("PartDesign::Pocket", "Pocket024")
pocket25.Profile = sketch27
pocket25.Type = "ThroughAll"
pocket25.Reversed = True

# Sketch on XY plane
sketch28 = body.newObject("Sketcher::SketchObject", "Sketch027")
sketch28.AttachmentSupport = (doc.getObject("XY_Plane"), [""])
sketch28.MapMode = "FlatFace"
add_polygon(sketch28, [(0.9, 7.5), (-0.9, 7.5), (-2.5, 12), (2.5, 12)])  # lines 0-3
sketch28.addConstraint([
    Sketcher.Constraint("Horizontal", 0),
    Sketcher.Constraint("Horizontal", 2),
    Sketcher.Constraint("Equal", 1, 3),
    Sketcher.Constraint("Angle", 1, Q("110 deg")),
    Sketcher.Constraint("DistanceY", -1, 1, 0, 2, 7.5),
    Sketcher.Constraint("DistanceX", 0, 2, 0, 1, 1.723741),
    Sketcher.Constraint("DistanceY", -1, 1, 1, 2, 12.0254),
    Sketcher.Constraint("DistanceX", 0, 2, -1, 1, 0.861871),
])
pocket26 = body.newObject("PartDesign::Pocket", "Pocket025")
pocket26.Profile = sketch28
pocket26.Type = "ThroughAll"
pocket26.Reversed = True

# Sketch on XZ plane
sketch29 = body.newObject("Sketcher::SketchObject", "Sketch028")
sketch29.AttachmentSupport = (doc.getObject("XZ_Plane"), [""])
sketch29.MapMode = "FlatFace"
sketch29.AttachmentOffset = App.Placement(Vector(0, 0, 6), App.Rotation())
sketch29.addGeometry([
    Part.Circle(Vector(50, 0, 0), Vector(0, 0, 1), 2),
    Part.Circle(Vector(100, 0, 0), Vector(0, 0, 1), 2),
], False)
sketch29.addConstraint([
    Sketcher.Constraint("Equal", 0, 1),
    Sketcher.Constraint("PointOnObject", 0, 3, -1),
    Sketcher.Constraint("PointOnObject", 1, 3, -1),
    Sketcher.Constraint("Diameter", 0, 4.0),
    Sketcher.Constraint("DistanceX", -1, 1, 0, 3, 50.0),
    Sketcher.Constraint("DistanceX", -1, 1, 1, 3, 100.0),
])
doc.recompute()
hole = body.newObject("PartDesign::Hole", "Hole")
hole.Profile = sketch29
hole.ThreadType = "None"
hole.Diameter = 4
hole.DepthType = "Dimension"
hole.Depth = 3
hole.DrillPoint = "Angled"
hole.DrillPointAngle = 118
hole.HoleCutType = "Countersink"
hole.HoleCutDiameter = 4.05
hole.HoleCutCountersinkAngle = 90

# Sketch on XY plane
sketch30 = body.newObject("Sketcher::SketchObject", "Sketch029")
sketch30.AttachmentSupport = (doc.getObject("XY_Plane"), [""])
sketch30.MapMode = "FlatFace"
sketch30.AttachmentOffset = App.Placement(Vector(0, 0, -5), App.Rotation())
add_polygon(sketch30, [(106, -3), (94, -3), (94, 3), (106, 3)])  # lines 0-3
add_polygon(sketch30, [(56, 3), (56, -3), (44, -3), (44, 3)])  # lines 4-7
sketch30.addConstraint([
    Sketcher.Constraint("Horizontal", 0),
    Sketcher.Constraint("Vertical", 1),
    Sketcher.Constraint("Horizontal", 2),
    Sketcher.Constraint("Vertical", 3),
    Sketcher.Constraint("Vertical", 4),
    Sketcher.Constraint("Horizontal", 5),
    Sketcher.Constraint("Vertical", 6),
    Sketcher.Constraint("Horizontal", 7),
    Sketcher.Constraint("Horizontal", 3, 2, 4, 2),
    Sketcher.Constraint("Horizontal", 2, 2, 6, 2),
    Sketcher.Constraint("Equal", 2, 5),
    Sketcher.Constraint("DistanceX", 0, 2, 0, 1, 12.0),
    Sketcher.Constraint("DistanceY", 1, 1, 1, 2, 6.0),
    Sketcher.Constraint("DistanceX", -1, 1, 0, 2, 94.0),
    Sketcher.Constraint("DistanceY", 0, 2, -1, 1, 3.0),
    Sketcher.Constraint("DistanceX", -1, 1, 4, 2, 56.0),
])
pocket27 = body.newObject("PartDesign::Pocket", "Pocket026")
pocket27.Profile = sketch30
pocket27.Length = 9.2
pocket27.Reversed = True
doc.recompute()

fillet = body.newObject("PartDesign::Fillet", "Fillet")
fillet.Base = (pocket27, edges_at(pocket27, [(106, 3, -0.4), (94, 3, -0.4)]))
fillet.Radius = 5
doc.recompute()

fillet2 = body.newObject("PartDesign::Fillet", "Fillet001")
fillet2.Base = (fillet, edges_at(fillet, [(56, 3, -0.4), (44, 3, -0.4)]))
fillet2.Radius = 5

doc.recompute()
